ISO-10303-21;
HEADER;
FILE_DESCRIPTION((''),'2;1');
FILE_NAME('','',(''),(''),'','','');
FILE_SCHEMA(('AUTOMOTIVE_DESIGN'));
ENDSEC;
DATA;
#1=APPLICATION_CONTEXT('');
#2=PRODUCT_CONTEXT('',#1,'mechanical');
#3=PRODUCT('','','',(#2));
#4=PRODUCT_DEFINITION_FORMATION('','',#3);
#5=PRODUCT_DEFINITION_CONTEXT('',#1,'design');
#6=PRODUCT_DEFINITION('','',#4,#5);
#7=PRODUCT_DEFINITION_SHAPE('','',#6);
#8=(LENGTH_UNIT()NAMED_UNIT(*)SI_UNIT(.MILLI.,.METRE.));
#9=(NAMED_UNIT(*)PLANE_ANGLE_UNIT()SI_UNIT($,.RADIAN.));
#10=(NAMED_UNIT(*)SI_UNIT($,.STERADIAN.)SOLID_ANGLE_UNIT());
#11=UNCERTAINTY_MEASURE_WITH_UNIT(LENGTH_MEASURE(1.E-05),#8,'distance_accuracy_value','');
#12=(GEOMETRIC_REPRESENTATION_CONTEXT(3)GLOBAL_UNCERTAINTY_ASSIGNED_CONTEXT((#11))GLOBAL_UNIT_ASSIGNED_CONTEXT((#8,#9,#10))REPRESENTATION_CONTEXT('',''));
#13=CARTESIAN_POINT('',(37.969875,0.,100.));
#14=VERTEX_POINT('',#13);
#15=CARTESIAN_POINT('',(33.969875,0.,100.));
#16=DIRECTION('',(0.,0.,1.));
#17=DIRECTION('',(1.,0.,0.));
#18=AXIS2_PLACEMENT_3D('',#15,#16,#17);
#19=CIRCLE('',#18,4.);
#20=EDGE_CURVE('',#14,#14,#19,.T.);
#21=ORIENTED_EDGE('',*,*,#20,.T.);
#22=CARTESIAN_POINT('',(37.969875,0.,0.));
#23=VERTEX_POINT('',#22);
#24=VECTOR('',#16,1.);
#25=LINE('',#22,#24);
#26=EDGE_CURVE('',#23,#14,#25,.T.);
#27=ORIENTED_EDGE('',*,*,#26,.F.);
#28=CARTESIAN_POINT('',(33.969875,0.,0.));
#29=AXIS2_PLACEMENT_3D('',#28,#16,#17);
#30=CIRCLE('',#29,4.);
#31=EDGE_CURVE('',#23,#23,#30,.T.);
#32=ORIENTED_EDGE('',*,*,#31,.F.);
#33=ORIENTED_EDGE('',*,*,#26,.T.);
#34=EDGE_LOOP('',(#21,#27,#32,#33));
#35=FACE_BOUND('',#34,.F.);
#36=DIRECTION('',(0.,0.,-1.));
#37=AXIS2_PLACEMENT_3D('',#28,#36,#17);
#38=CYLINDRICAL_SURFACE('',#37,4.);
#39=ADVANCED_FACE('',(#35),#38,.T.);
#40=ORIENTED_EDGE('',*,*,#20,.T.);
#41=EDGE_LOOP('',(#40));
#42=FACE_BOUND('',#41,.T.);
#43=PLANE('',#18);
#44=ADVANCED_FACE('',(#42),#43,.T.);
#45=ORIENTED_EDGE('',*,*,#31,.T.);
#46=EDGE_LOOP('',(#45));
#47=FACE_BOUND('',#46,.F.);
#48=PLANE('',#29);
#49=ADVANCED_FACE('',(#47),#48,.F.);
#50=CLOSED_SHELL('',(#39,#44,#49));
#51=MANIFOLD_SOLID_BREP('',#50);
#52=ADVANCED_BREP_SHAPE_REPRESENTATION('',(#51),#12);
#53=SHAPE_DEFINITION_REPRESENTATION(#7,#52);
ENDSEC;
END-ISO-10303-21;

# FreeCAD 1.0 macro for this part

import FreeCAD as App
import Part
import Sketcher

V = App.Vector

doc = App.newDocument("Part")
body = doc.addObject("PartDesign::Body", "Body")

sketch1 = body.newObject("Sketcher::SketchObject", "Sketch")
sketch1.AttachmentSupport = (doc.getObject("XY_Plane"), [""])
sketch1.MapMode = "FlatFace"
sketch1.addGeometry(Part.Circle(V(33.969875, 0, 0), V(0, 0, 1), 4), False)
sketch1.addConstraint([
    Sketcher.Constraint("PointOnObject", 0, 3, -1),
    Sketcher.Constraint("Diameter", 0, 8.0),
    Sketcher.Constraint("DistanceX", -1, 1, 0, 3, 33.969875),
])
pad1 = body.newObject("PartDesign::Pad", "Pad")
pad1.Profile = sketch1
pad1.Length = 100

doc.recompute()
